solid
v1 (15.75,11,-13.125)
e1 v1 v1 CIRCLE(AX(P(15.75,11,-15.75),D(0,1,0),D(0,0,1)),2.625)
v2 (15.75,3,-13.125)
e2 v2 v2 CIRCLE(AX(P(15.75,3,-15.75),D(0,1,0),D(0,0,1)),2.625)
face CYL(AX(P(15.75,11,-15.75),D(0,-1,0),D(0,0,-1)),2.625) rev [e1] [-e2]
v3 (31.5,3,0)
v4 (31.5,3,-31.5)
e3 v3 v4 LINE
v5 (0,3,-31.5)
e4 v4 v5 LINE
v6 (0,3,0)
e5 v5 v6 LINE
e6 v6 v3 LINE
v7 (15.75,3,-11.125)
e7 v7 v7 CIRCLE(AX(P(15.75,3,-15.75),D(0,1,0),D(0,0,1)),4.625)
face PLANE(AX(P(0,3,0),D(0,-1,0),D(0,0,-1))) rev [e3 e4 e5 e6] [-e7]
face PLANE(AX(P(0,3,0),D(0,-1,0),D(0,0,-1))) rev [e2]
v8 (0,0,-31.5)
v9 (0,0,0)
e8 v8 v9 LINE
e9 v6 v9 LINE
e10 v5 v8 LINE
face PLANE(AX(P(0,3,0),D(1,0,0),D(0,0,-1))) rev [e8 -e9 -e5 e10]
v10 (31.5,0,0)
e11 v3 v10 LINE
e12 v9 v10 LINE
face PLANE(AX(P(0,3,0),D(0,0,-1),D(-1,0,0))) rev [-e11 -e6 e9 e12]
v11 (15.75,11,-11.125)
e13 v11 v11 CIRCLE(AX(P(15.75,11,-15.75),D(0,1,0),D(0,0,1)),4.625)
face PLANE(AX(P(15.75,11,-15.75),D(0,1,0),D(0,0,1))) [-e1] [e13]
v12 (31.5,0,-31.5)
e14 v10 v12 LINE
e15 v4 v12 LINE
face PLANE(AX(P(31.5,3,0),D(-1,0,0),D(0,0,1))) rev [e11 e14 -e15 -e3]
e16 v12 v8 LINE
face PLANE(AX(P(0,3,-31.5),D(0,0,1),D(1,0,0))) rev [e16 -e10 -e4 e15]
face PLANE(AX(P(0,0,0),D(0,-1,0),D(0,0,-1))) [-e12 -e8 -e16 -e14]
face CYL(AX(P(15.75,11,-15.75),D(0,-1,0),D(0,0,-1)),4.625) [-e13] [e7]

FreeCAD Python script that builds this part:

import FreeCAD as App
import Part
import Sketcher

V = App.Vector


def add_polygon(sketch, points):
    """Adds a closed chain of lines whose ends are joined by coincident constraints."""
    first, n = sketch.GeometryCount, len(points)
    for a, b in zip(points, points[1:] + points[:1]):
        sketch.addGeometry(Part.LineSegment(App.Vector(*a, 0), App.Vector(*b, 0)), False)
    for i in range(n):
        sketch.addConstraint(Sketcher.Constraint("Coincident", first + i, 2, first + (i + 1) % n, 1))

doc = App.newDocument("Part")
body = doc.addObject("PartDesign::Body", "Body")

# Sketch on XZ plane
sketch1 = body.newObject("Sketcher::SketchObject", "Sketch")
sketch1.AttachmentSupport = (doc.getObject("XZ_Plane"), [""])
sketch1.MapMode = "FlatFace"
add_polygon(sketch1, [(0, -32), (0, 0), (32, 0), (32, -32)])  # lines 0-3
sketch1.addConstraint(Sketcher.Constraint("Vertical", 0))
sketch1.addConstraint(Sketcher.Constraint("Horizontal", 1))
sketch1.addConstraint(Sketcher.Constraint("Vertical", 2))
sketch1.addConstraint(Sketcher.Constraint("Horizontal", 3))
sketch1.addConstraint(Sketcher.Constraint("Coincident", 0, 2, -1, 1))
sketch1.addConstraint(Sketcher.Constraint("Equal", 3, 0))
sketch1.addConstraint(Sketcher.Constraint("DistanceX", 1, 1, 1, 2, 31.5))
pad1 = body.newObject("PartDesign::Pad", "Pad")
pad1.Profile = sketch1
pad1.Length = 3
pad1.Reversed = True

# Sketch on XZ plane
sketch2 = body.newObject("Sketcher::SketchObject", "Sketch001")
sketch2.AttachmentSupport = (doc.getObject("XZ_Plane"), [""])
sketch2.MapMode = "FlatFace"
sketch2.AttachmentOffset = App.Placement(V(0, 0, -3), App.Rotation())
sketch2.addGeometry(Part.Circle(V(15.8, -15.8, 0), V(0, 0, 1), 4.6), False)
sketch2.addGeometry(Part.Circle(V(15.8, -15.8, 0), V(0, 0, 1), 2.6), False)
sketch2.addConstraint(Sketcher.Constraint("Coincident", 1, 3, 0, 3))
sketch2.addConstraint(Sketcher.Constraint("Diameter", 0, 9.25))
sketch2.addConstraint(Sketcher.Constraint("Diameter", 1, 5.25))
sketch2.addConstraint(Sketcher.Constraint("DistanceX", -1, 1, 0, 3, 15.75))
sketch2.addConstraint(Sketcher.Constraint("DistanceY", 0, 3, -1, 1, 15.75))
pad2 = body.newObject("PartDesign::Pad", "Pad001")
pad2.Profile = sketch2
pad2.Length = 8
pad2.Reversed = True

doc.recompute()
